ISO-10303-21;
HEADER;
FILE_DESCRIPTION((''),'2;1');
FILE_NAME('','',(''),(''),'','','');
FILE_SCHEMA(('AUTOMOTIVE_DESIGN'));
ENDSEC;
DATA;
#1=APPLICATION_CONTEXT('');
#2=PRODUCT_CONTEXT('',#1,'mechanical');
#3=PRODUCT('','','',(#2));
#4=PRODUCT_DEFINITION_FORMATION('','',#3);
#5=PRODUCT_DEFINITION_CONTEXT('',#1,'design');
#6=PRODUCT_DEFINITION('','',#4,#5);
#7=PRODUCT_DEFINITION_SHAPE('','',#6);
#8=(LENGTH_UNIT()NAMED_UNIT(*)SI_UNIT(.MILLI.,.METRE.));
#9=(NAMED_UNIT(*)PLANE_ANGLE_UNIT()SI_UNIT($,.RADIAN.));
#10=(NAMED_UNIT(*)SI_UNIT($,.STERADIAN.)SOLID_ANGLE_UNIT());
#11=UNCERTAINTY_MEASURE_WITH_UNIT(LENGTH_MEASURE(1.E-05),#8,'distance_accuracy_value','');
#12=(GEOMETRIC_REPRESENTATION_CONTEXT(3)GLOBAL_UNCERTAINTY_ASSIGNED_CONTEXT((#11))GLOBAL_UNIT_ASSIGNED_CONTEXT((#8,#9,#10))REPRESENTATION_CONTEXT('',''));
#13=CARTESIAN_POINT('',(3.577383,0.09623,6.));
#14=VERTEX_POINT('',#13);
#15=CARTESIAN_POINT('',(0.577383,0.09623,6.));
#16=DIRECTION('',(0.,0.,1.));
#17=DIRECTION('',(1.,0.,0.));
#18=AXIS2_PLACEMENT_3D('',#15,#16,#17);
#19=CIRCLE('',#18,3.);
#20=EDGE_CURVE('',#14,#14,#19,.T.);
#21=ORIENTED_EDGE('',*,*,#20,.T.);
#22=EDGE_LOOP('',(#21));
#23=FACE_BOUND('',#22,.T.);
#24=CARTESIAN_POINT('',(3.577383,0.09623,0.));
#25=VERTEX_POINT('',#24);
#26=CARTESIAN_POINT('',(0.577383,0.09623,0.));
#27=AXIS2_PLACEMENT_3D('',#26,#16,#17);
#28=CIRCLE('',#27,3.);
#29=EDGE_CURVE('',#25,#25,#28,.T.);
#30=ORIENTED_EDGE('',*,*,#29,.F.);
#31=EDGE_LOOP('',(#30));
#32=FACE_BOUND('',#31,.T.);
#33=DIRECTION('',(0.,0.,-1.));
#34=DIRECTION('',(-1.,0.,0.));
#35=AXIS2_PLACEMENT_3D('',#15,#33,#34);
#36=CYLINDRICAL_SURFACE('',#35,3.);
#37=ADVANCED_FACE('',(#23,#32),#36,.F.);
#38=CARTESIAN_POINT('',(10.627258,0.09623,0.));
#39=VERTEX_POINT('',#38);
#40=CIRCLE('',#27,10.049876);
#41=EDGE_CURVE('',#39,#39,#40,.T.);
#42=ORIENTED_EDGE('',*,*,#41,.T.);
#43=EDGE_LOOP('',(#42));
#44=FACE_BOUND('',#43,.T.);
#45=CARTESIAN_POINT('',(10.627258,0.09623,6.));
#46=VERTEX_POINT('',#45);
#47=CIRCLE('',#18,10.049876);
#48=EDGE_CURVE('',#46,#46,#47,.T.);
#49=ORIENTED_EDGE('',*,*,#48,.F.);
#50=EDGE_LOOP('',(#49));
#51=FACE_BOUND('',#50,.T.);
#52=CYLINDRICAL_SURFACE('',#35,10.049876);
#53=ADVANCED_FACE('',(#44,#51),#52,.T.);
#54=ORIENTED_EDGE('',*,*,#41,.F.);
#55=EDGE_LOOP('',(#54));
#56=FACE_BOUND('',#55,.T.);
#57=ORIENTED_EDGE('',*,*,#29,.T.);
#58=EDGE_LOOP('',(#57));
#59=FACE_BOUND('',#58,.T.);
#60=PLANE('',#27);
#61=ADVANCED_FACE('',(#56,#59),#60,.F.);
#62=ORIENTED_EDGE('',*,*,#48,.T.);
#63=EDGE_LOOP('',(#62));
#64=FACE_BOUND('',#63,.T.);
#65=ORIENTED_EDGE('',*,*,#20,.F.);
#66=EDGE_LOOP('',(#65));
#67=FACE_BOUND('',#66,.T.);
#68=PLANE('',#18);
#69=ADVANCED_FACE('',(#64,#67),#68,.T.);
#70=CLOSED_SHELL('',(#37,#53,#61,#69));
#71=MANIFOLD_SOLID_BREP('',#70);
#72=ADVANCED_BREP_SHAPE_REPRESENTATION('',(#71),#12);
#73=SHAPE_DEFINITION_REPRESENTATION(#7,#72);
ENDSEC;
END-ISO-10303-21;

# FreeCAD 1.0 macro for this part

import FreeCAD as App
import Part
import Sketcher
Q = App.Units.Quantity

doc = App.newDocument("Part")
body = doc.addObject("PartDesign::Body", "Body")

sketch1 = body.newObject("Sketcher::SketchObject", "Sketch")
sketch1.AttachmentSupport = (doc.getObject("XY_Plane"), [""])
sketch1.MapMode = "FlatFace"
sketch1.addGeometry(Part.Circle(App.Vector(0.577383, 0.09623, 0), App.Vector(0, 0, 1), 10.049876), False)
sketch1.addGeometry(Part.Circle(App.Vector(0.577383, 0.09623, 0), App.Vector(0, 0, 1), 3), False)
sketch1.addConstraint(Sketcher.Constraint("Coincident", 1, 3, 0, 3))
sketch1.addConstraint(Sketcher.Constraint("Diameter", 1, Q("6 mm")))
sketch1.addConstraint(Sketcher.Constraint("Diameter", 0, Q("20.099751 mm")))
sketch1.addConstraint(Sketcher.Constraint("DistanceY", -1, 1, 0, 3, Q("0.09623 mm")))
sketch1.addConstraint(Sketcher.Constraint("DistanceX", -1, 1, 0, 3, Q("0.577383 mm")))
pad1 = body.newObject("PartDesign::Pad", "Pad")
pad1.Profile = sketch1
pad1.Length = 6

doc.recompute()
